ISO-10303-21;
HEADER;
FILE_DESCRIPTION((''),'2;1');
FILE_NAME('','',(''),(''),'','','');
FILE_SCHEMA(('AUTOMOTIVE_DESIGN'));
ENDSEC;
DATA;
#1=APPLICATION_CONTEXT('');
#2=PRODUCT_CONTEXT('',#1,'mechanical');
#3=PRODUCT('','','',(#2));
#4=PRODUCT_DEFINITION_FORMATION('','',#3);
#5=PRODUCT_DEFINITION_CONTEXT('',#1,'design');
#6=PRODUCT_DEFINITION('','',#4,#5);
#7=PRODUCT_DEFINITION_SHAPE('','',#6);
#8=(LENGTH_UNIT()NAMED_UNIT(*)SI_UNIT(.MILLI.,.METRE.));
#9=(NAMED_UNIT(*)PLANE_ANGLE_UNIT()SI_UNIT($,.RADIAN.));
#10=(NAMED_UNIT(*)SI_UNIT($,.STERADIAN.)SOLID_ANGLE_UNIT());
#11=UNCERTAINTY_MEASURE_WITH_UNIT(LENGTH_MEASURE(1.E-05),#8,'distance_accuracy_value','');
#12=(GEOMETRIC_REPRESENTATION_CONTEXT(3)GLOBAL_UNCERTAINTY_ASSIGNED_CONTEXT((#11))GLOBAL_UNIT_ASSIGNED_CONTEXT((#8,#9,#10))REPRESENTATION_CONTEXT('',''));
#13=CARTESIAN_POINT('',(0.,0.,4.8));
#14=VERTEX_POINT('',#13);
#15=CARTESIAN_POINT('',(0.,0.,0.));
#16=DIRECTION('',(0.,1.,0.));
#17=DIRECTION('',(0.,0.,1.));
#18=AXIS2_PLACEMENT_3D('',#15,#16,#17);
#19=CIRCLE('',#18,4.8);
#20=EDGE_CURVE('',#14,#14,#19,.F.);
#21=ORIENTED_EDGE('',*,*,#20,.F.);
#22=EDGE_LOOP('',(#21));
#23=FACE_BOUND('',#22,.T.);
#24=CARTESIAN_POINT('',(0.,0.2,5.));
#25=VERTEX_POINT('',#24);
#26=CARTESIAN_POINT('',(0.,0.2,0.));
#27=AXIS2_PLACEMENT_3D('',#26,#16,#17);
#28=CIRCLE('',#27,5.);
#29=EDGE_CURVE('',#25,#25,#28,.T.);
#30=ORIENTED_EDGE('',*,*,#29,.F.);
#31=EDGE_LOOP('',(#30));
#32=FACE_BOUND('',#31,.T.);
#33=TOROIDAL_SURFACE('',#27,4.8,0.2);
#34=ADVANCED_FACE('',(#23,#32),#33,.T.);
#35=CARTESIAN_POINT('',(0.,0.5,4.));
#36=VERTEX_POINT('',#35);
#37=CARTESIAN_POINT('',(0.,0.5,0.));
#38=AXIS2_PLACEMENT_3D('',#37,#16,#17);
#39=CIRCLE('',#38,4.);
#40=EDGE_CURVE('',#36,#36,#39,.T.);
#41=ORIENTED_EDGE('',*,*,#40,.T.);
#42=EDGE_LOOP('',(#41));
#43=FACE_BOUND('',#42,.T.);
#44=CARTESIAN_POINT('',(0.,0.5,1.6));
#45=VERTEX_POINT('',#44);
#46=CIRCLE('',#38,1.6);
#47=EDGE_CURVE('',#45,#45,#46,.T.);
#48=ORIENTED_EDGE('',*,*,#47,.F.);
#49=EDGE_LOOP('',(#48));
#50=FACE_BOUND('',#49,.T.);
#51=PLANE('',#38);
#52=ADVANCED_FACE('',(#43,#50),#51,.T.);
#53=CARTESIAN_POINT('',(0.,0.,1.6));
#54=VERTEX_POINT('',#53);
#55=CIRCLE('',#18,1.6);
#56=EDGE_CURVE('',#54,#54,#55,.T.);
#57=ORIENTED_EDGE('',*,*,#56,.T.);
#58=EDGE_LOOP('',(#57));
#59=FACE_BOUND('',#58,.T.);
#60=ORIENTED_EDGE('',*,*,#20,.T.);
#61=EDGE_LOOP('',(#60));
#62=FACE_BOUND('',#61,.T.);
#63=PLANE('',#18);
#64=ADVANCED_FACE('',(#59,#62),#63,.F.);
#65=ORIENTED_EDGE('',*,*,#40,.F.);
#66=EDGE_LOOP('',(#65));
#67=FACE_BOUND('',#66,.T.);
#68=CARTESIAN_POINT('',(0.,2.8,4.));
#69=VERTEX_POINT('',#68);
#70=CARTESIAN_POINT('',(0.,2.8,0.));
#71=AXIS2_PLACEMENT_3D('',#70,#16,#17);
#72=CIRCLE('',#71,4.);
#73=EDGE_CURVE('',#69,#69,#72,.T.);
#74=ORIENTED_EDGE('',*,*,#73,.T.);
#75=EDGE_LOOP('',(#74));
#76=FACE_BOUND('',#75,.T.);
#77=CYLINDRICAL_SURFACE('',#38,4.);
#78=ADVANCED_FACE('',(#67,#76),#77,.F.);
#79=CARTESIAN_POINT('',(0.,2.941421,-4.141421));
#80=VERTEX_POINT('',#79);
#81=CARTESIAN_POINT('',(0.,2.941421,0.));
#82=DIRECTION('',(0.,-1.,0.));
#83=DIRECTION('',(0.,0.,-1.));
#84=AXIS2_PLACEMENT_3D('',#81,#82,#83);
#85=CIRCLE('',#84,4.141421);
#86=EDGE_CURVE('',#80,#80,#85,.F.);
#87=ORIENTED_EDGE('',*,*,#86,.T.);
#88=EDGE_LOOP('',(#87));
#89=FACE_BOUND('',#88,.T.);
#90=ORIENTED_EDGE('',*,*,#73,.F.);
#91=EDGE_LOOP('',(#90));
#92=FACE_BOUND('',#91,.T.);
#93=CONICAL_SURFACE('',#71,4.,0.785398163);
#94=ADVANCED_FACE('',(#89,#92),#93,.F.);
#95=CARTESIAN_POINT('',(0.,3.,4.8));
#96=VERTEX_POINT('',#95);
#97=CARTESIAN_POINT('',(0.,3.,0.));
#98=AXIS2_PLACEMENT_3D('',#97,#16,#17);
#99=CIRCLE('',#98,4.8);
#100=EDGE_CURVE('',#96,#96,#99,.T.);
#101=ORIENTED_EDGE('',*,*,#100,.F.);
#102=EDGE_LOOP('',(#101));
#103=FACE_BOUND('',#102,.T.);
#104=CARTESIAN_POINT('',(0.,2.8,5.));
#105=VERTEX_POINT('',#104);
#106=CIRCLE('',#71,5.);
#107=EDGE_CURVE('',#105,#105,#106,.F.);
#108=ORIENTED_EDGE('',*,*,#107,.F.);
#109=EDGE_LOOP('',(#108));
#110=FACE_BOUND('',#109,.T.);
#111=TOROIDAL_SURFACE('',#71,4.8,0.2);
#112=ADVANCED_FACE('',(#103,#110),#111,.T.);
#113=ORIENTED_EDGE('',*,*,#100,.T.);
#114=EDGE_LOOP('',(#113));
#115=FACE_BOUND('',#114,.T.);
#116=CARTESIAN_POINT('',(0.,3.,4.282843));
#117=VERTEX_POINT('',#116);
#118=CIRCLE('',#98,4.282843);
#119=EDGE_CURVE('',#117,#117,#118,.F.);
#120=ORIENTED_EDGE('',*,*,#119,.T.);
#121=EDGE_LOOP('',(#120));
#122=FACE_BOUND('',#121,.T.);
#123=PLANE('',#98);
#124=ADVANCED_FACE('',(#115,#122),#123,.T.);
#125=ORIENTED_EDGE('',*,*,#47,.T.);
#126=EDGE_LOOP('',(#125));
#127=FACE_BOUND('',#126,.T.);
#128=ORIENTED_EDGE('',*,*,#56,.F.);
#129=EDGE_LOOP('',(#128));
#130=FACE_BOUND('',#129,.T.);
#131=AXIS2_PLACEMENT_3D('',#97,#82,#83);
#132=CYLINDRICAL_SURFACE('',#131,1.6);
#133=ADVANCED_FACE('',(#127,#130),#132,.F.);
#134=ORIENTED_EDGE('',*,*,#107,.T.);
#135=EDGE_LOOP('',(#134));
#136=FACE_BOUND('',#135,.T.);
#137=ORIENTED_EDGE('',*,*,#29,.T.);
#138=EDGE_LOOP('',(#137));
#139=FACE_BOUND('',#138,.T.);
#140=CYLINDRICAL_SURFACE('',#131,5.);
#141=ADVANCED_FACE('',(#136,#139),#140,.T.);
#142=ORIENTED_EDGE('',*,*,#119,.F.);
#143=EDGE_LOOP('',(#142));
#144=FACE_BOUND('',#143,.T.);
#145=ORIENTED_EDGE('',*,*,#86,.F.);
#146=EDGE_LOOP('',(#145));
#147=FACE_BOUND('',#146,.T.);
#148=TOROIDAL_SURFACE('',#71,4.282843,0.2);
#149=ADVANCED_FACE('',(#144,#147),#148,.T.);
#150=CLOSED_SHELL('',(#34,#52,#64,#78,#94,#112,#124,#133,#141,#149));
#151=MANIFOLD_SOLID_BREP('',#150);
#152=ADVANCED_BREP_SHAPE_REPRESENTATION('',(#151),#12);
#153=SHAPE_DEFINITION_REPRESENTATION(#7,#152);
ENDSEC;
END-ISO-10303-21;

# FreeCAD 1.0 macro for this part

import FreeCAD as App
import Part
import Sketcher

V = App.Vector
Q = App.Units.Quantity


def edges_at(feature, points):
    """Names of the edges that pass closest to the given points."""
    edges = feature.Shape.Edges
    near = lambda p: min(range(len(edges)), key=lambda i: edges[i].distToShape(Part.Vertex(*p))[0])
    return sorted({f"Edge{near(p) + 1}" for p in points})

doc = App.newDocument("Part")
body = doc.addObject("PartDesign::Body", "Body")

# Sketch on XZ plane
sketch1 = body.newObject("Sketcher::SketchObject", "Sketch")
sketch1.AttachmentSupport = (doc.getObject("XZ_Plane"), [""])
sketch1.MapMode = "FlatFace"
sketch1.addGeometry([
    Part.Circle(V(0, 0, 0), V(0, 0, 1), 5),
    Part.Circle(V(0, 0, 0), V(0, 0, 1), 1.6),
], False)
sketch1.addConstraint([
    Sketcher.Constraint("Coincident", 0, 3, -1, 1),
    Sketcher.Constraint("Coincident", 1, 3, -1, 1),
    Sketcher.Constraint("Diameter", 0, Q("10 mm")),
    Sketcher.Constraint("Diameter", 1, Q("3.2 mm")),
])
pad1 = body.newObject("PartDesign::Pad", "Pad")
pad1.Profile = sketch1
pad1.Length = 3
pad1.Reversed = True

# Sketch on XZ plane
sketch2 = body.newObject("Sketcher::SketchObject", "Sketch001")
sketch2.AttachmentSupport = (doc.getObject("XZ_Plane"), [""])
sketch2.MapMode = "FlatFace"
sketch2.AttachmentOffset = App.Placement(V(0, 0, -3), App.Rotation())
sketch2.addGeometry(Part.Circle(V(0, 0, 0), V(0, 0, 1), 4), False)
sketch2.addConstraint([
    Sketcher.Constraint("Coincident", 0, 3, -1, 1),
    Sketcher.Constraint("Diameter", 0, Q("8 mm")),
])
pocket1 = body.newObject("PartDesign::Pocket", "Pocket")
pocket1.Profile = sketch2
pocket1.Length = 2.5
pocket1.Reversed = True
doc.recompute()

chamfer = body.newObject("PartDesign::Chamfer", "Chamfer")
chamfer.Base = (pocket1, edges_at(pocket1, [(0, 3, -4)]))
chamfer.Size = 0.2
doc.recompute()

fillet = body.newObject("PartDesign::Fillet", "Fillet")
fillet.Base = (chamfer, edges_at(chamfer, [(0, 3, -4.2), (0, 0, -5), (0, 3, -5)]))
fillet.Radius = 0.2

doc.recompute()
